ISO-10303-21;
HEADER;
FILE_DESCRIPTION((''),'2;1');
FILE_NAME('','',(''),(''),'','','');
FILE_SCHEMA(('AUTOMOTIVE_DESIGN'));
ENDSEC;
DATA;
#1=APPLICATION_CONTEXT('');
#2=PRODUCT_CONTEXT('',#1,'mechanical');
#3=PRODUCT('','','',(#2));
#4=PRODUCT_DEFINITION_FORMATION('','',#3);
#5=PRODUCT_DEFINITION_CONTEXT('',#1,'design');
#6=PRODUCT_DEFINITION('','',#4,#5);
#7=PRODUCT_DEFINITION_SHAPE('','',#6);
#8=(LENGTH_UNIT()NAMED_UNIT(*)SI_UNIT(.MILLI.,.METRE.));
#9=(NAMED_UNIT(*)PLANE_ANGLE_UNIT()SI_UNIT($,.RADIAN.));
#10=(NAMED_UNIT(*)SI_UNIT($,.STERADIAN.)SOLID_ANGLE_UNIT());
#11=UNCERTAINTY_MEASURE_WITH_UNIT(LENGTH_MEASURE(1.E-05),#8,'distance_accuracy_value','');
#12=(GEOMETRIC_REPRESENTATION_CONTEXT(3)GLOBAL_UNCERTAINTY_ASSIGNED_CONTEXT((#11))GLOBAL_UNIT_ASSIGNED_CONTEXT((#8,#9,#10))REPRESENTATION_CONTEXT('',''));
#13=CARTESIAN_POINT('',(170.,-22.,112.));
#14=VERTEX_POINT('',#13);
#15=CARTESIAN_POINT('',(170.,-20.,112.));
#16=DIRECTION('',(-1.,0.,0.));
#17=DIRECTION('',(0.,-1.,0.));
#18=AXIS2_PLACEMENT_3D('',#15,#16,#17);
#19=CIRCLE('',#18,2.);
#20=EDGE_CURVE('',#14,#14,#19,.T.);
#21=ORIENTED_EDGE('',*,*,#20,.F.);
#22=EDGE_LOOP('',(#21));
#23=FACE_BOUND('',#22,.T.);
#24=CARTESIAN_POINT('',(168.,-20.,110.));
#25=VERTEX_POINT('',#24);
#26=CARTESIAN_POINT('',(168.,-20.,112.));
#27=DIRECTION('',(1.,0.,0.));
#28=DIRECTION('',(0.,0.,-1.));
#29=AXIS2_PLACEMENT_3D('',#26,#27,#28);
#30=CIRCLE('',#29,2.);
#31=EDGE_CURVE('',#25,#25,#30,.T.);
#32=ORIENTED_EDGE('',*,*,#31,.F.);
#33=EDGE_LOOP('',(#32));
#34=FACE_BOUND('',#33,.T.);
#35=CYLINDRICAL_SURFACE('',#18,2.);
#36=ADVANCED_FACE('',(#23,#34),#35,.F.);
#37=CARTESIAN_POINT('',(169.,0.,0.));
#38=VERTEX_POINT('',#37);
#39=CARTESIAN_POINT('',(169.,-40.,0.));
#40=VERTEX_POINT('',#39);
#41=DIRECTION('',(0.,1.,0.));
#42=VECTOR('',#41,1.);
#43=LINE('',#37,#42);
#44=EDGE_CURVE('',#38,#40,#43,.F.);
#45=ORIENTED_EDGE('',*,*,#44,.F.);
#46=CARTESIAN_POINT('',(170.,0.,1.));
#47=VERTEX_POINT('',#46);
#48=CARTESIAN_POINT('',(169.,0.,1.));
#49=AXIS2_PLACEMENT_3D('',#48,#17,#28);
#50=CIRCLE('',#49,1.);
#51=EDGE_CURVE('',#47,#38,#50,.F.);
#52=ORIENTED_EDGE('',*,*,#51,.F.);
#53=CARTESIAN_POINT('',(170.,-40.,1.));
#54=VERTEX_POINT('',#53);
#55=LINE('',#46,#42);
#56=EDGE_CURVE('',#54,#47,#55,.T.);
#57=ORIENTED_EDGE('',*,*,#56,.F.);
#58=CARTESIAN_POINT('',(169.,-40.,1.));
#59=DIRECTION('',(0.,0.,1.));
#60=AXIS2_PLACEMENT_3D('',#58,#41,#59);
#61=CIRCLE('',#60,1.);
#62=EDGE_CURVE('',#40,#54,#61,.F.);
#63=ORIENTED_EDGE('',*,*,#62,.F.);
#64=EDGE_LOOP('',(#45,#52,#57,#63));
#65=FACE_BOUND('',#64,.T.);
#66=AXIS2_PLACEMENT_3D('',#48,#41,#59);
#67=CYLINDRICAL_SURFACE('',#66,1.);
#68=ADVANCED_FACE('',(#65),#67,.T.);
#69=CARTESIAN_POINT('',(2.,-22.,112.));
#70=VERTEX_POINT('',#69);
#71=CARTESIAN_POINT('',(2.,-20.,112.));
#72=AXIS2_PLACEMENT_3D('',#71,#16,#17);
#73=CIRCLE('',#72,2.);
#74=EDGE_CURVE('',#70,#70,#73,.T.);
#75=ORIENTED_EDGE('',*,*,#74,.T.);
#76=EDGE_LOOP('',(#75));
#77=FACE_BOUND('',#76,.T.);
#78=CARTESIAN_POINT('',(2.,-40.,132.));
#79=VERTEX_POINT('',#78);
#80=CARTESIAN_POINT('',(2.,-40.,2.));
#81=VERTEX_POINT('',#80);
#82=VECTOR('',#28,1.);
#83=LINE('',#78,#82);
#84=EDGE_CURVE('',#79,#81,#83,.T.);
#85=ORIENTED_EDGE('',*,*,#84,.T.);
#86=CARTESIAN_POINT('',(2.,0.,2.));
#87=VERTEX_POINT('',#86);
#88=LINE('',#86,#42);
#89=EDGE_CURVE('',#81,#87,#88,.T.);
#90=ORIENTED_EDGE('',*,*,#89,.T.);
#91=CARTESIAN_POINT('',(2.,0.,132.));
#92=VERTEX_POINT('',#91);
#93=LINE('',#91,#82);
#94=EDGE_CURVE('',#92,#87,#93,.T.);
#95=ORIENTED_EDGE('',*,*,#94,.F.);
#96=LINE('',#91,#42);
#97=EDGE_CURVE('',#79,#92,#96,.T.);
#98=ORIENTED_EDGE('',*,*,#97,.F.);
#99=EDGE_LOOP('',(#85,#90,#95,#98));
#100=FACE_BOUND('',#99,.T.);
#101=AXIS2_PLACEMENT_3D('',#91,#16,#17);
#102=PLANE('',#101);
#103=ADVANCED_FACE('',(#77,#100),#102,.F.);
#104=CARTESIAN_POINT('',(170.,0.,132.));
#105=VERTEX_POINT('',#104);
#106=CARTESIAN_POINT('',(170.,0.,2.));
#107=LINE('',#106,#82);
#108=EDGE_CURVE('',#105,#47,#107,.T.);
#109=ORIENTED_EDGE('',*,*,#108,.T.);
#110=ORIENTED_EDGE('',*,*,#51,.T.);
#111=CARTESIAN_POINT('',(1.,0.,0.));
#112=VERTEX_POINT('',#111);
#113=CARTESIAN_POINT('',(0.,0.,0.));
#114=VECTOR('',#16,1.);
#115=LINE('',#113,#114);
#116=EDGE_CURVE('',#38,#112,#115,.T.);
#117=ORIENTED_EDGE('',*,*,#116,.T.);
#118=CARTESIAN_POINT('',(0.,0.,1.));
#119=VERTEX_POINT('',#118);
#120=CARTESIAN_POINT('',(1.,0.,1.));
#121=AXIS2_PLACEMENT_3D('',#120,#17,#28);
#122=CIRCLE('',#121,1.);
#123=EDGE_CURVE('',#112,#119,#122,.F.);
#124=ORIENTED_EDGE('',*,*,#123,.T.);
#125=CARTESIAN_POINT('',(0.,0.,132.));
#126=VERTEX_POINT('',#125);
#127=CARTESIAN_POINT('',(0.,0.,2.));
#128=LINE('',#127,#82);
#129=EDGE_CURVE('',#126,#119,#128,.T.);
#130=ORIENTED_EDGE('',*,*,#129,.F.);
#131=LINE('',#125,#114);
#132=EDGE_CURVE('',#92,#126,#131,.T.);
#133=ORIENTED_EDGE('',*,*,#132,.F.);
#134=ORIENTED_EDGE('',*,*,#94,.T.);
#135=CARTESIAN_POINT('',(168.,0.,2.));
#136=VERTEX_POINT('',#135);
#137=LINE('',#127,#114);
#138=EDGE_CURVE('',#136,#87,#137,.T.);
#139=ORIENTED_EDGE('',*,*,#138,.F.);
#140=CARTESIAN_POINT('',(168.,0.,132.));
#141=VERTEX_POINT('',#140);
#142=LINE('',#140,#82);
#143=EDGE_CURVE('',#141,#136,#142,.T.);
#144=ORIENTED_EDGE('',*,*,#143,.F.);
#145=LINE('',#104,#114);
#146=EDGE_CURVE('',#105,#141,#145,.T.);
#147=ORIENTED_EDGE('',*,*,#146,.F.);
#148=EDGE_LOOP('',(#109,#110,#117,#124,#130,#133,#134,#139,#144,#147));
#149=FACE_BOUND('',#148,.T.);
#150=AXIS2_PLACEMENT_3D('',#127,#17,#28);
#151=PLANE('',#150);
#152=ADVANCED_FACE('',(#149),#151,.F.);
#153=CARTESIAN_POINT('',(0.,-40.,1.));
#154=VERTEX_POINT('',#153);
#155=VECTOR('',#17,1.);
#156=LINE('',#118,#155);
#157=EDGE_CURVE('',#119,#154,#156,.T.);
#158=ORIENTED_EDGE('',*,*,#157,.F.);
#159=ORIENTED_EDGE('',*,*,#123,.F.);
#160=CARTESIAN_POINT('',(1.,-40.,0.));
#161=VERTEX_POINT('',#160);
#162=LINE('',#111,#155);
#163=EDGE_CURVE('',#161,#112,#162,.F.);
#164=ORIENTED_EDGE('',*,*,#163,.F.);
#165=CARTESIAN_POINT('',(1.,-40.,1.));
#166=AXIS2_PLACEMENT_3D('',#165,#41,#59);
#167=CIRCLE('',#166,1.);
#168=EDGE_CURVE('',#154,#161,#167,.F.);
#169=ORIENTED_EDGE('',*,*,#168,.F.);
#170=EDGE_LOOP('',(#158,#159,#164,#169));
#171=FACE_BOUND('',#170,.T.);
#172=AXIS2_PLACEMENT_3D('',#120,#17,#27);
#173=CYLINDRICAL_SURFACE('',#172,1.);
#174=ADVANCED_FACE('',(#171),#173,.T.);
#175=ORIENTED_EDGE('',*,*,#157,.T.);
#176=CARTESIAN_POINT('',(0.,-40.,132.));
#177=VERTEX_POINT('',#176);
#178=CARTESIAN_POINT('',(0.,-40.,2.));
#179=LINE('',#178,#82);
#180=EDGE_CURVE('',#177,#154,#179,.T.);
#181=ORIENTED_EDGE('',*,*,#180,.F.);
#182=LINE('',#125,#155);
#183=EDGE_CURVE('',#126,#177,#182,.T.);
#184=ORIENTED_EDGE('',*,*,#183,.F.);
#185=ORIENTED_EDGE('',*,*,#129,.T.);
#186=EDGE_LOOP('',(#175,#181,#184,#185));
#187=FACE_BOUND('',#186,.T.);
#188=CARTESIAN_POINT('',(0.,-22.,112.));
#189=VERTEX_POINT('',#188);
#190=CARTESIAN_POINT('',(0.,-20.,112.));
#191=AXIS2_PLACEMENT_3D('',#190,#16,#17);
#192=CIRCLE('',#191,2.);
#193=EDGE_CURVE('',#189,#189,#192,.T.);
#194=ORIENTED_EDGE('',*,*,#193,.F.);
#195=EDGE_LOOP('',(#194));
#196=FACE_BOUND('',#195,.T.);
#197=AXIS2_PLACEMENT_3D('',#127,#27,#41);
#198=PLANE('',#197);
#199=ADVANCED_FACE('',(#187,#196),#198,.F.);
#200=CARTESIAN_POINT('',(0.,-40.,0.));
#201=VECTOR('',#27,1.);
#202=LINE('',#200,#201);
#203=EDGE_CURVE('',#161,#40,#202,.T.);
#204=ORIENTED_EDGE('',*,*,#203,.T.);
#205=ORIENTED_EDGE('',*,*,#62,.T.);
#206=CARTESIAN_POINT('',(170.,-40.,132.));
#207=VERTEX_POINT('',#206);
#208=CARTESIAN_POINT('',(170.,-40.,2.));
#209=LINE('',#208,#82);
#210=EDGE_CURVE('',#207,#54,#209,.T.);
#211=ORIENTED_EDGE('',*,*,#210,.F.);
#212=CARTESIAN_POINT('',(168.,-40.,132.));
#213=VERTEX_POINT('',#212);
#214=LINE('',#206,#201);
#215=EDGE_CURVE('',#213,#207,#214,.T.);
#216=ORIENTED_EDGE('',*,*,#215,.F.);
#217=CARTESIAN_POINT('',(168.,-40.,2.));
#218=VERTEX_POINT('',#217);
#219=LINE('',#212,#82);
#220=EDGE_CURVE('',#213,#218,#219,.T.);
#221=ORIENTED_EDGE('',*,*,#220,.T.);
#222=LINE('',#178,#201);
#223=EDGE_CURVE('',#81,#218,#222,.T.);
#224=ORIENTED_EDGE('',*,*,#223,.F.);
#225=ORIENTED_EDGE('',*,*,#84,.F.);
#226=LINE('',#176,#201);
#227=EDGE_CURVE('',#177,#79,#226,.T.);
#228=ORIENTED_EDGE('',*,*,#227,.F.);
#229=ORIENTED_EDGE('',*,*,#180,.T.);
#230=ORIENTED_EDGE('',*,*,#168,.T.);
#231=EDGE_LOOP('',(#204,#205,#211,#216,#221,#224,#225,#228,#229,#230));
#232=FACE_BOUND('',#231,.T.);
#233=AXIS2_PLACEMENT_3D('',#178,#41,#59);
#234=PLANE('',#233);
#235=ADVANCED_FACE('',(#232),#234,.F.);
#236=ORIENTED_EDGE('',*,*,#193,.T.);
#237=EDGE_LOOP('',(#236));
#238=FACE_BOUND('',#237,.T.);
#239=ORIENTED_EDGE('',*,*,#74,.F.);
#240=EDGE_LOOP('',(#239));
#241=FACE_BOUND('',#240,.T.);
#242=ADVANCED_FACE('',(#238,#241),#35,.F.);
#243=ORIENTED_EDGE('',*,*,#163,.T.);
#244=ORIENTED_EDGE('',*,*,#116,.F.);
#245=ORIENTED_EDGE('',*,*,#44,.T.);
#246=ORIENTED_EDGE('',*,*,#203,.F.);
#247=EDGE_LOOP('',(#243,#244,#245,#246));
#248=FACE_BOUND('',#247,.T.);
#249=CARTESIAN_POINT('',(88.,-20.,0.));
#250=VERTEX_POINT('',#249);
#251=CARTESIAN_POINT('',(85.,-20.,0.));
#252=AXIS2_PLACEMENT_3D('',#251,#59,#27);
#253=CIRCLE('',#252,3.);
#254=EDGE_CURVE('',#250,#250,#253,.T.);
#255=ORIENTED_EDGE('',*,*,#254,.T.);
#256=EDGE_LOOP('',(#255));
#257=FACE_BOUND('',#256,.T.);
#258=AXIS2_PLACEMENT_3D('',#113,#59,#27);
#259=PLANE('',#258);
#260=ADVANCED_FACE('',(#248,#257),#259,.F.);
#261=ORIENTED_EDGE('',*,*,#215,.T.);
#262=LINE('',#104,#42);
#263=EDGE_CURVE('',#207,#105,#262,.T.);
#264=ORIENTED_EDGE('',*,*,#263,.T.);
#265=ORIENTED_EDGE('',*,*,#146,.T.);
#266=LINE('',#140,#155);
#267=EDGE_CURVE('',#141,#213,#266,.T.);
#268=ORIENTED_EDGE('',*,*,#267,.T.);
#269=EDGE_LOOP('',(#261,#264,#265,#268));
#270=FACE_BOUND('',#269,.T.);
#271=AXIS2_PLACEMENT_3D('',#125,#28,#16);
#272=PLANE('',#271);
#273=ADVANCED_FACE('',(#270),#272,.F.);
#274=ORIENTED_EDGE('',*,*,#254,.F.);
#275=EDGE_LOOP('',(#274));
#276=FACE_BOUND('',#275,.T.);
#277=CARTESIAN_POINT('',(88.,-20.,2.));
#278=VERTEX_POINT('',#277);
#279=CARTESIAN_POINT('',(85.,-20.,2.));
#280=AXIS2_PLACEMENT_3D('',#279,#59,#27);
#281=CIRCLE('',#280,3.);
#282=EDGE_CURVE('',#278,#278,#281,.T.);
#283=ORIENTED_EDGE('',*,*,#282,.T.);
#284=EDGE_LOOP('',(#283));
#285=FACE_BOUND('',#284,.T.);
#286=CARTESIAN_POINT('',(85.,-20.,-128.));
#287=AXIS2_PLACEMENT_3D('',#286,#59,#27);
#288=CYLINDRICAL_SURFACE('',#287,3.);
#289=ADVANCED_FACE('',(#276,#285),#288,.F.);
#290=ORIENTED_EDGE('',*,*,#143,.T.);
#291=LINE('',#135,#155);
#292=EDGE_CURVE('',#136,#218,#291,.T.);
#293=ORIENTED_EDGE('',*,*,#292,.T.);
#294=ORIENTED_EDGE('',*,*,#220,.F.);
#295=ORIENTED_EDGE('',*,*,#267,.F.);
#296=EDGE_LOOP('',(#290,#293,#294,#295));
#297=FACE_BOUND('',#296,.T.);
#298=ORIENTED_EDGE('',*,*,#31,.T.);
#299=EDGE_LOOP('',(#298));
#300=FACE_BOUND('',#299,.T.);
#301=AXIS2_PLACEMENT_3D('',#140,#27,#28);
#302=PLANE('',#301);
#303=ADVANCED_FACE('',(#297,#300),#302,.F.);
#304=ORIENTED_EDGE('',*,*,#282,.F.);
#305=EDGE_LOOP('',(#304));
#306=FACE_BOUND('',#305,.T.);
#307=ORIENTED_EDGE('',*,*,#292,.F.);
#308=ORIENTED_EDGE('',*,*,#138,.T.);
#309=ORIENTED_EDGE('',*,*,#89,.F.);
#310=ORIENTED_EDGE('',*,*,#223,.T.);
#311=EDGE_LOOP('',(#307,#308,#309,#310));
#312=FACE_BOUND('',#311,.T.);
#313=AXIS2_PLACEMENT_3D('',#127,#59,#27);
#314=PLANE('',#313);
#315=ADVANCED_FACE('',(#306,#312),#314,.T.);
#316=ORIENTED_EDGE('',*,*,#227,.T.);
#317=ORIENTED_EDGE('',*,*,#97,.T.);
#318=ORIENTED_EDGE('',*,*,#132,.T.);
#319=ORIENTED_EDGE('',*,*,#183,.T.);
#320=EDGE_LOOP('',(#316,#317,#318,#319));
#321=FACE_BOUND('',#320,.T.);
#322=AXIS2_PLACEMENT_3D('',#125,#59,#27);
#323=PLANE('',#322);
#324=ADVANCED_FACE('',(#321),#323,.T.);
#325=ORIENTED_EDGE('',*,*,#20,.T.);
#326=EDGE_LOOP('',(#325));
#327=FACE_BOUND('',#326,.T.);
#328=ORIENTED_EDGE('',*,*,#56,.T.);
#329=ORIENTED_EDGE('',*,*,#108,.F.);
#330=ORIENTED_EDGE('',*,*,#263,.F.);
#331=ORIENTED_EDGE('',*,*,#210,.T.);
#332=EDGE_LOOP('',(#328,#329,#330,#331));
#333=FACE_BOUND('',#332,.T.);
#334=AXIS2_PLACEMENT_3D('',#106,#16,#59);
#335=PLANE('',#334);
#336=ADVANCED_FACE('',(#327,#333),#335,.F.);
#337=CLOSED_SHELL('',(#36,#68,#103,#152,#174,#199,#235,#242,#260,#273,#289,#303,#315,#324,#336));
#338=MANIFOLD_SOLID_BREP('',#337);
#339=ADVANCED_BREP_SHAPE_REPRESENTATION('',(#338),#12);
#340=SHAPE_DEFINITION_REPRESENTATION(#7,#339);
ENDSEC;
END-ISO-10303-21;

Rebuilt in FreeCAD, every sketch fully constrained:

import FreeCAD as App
import Part
import Sketcher


def edges_at(feature, points):
    """Names of the edges that pass closest to the given points."""
    edges = feature.Shape.Edges
    near = lambda p: min(range(len(edges)), key=lambda i: edges[i].distToShape(Part.Vertex(*p))[0])
    return sorted({f"Edge{near(p) + 1}" for p in points})


def add_polygon(sketch, points):
    """Adds a closed chain of lines whose ends are joined by coincident constraints."""
    first, n = sketch.GeometryCount, len(points)
    for a, b in zip(points, points[1:] + points[:1]):
        sketch.addGeometry(Part.LineSegment(App.Vector(*a, 0), App.Vector(*b, 0)), False)
    for i in range(n):
        sketch.addConstraint(Sketcher.Constraint("Coincident", first + i, 2, first + (i + 1) % n, 1))

doc = App.newDocument("Part")
body = doc.addObject("PartDesign::Body", "Body")

sketch1 = body.newObject("Sketcher::SketchObject", "Sketch")
sketch1.AttachmentSupport = (doc.getObject("XY_Plane"), [""])
sketch1.MapMode = "FlatFace"
add_polygon(sketch1, [(0, 0), (0, -40), (170, -40), (170, 0)])
sketch1.addConstraint(Sketcher.Constraint("Vertical", 0))
sketch1.addConstraint(Sketcher.Constraint("Horizontal", 1))
sketch1.addConstraint(Sketcher.Constraint("Vertical", 2))
sketch1.addConstraint(Sketcher.Constraint("Horizontal", 3))
sketch1.addConstraint(Sketcher.Constraint("Coincident", 3, 2, -1, 1))
sketch1.addConstraint(Sketcher.Constraint("DistanceX", 1, 1, 1, 2, 170.0))
sketch1.addConstraint(Sketcher.Constraint("DistanceY", 0, 2, 0, 1, 40.0))
pad1 = body.newObject("PartDesign::Pad", "Pad")
pad1.Profile = sketch1
pad1.Length = 2

sketch2 = body.newObject("Sketcher::SketchObject", "Sketch001")
sketch2.AttachmentSupport = (doc.getObject("XY_Plane"), [""])
sketch2.MapMode = "FlatFace"
sketch2.AttachmentOffset = App.Placement(App.Vector(0, 0, 2), App.Rotation())
add_polygon(sketch2, [(0, 0), (0, -40), (2, -40), (2, 0)])
sketch2.addConstraint(Sketcher.Constraint("Vertical", 0))
sketch2.addConstraint(Sketcher.Constraint("Horizontal", 1))
sketch2.addConstraint(Sketcher.Constraint("Vertical", 2))
sketch2.addConstraint(Sketcher.Constraint("Horizontal", 3))
sketch2.addConstraint(Sketcher.Constraint("Coincident", 3, 2, -1, 1))
sketch2.addConstraint(Sketcher.Constraint("DistanceX", 1, 1, 1, 2, 2.0))
sketch2.addConstraint(Sketcher.Constraint("DistanceY", 0, 2, 0, 1, 40.0))
pad2 = body.newObject("PartDesign::Pad", "Pad001")
pad2.Profile = sketch2
pad2.Length = 130

sketch3 = body.newObject("Sketcher::SketchObject", "Sketch002")
sketch3.AttachmentSupport = (doc.getObject("XY_Plane"), [""])
sketch3.MapMode = "FlatFace"
sketch3.AttachmentOffset = App.Placement(App.Vector(0, 0, 2), App.Rotation())
add_polygon(sketch3, [(168, 0), (168, -40), (170, -40), (170, 0)])
sketch3.addConstraint(Sketcher.Constraint("Vertical", 0))
sketch3.addConstraint(Sketcher.Constraint("Horizontal", 1))
sketch3.addConstraint(Sketcher.Constraint("Vertical", 2))
sketch3.addConstraint(Sketcher.Constraint("Horizontal", 3))
sketch3.addConstraint(Sketcher.Constraint("PointOnObject", 2, 2, -1))
sketch3.addConstraint(Sketcher.Constraint("DistanceX", 1, 1, 1, 2, 2.0))
sketch3.addConstraint(Sketcher.Constraint("DistanceY", 0, 2, 0, 1, 40.0))
sketch3.addConstraint(Sketcher.Constraint("DistanceX", -1, 1, 0, 2, 168.0))
pad3 = body.newObject("PartDesign::Pad", "Pad002")
pad3.Profile = sketch3
pad3.Length = 130

sketch4 = body.newObject("Sketcher::SketchObject", "Sketch003")
sketch4.AttachmentSupport = (doc.getObject("YZ_Plane"), [""])
sketch4.MapMode = "FlatFace"
sketch4.addGeometry(Part.Circle(App.Vector(-20, 112, 0), App.Vector(0, 0, 1), 2), False)
sketch4.addConstraint(Sketcher.Constraint("Diameter", 0, 4.0))
sketch4.addConstraint(Sketcher.Constraint("DistanceX", 0, 3, -1, 1, 20.0))
sketch4.addConstraint(Sketcher.Constraint("DistanceY", -1, 1, 0, 3, 112.0))
pocket1 = body.newObject("PartDesign::Pocket", "Pocket")
pocket1.Profile = sketch4
pocket1.Type = "ThroughAll"
pocket1.Reversed = True
doc.recompute()

fillet = body.newObject("PartDesign::Fillet", "Fillet")
fillet.Base = (pocket1, edges_at(pocket1, [(0, -20, 0)]))
fillet.Radius = 1
doc.recompute()

fillet2 = body.newObject("PartDesign::Fillet", "Fillet001")
fillet2.Base = (fillet, edges_at(fillet, [(170, -20, 0)]))
fillet2.Radius = 1

sketch5 = body.newObject("Sketcher::SketchObject", "Sketch004")
sketch5.AttachmentSupport = (doc.getObject("XY_Plane"), [""])
sketch5.MapMode = "FlatFace"
sketch5.AttachmentOffset = App.Placement(App.Vector(0, 0, 2), App.Rotation())
sketch5.addGeometry(Part.Circle(App.Vector(85, -20, 0), App.Vector(0, 0, 1), 3), False)
sketch5.addConstraint(Sketcher.Constraint("Diameter", 0, 6.0))
sketch5.addConstraint(Sketcher.Constraint("DistanceX", -1, 1, 0, 3, 85.0))
sketch5.addConstraint(Sketcher.Constraint("DistanceY", 0, 3, -1, 1, 20.0))
pocket2 = body.newObject("PartDesign::Pocket", "Pocket001")
pocket2.Profile = sketch5
pocket2.Length = 130

doc.recompute()
